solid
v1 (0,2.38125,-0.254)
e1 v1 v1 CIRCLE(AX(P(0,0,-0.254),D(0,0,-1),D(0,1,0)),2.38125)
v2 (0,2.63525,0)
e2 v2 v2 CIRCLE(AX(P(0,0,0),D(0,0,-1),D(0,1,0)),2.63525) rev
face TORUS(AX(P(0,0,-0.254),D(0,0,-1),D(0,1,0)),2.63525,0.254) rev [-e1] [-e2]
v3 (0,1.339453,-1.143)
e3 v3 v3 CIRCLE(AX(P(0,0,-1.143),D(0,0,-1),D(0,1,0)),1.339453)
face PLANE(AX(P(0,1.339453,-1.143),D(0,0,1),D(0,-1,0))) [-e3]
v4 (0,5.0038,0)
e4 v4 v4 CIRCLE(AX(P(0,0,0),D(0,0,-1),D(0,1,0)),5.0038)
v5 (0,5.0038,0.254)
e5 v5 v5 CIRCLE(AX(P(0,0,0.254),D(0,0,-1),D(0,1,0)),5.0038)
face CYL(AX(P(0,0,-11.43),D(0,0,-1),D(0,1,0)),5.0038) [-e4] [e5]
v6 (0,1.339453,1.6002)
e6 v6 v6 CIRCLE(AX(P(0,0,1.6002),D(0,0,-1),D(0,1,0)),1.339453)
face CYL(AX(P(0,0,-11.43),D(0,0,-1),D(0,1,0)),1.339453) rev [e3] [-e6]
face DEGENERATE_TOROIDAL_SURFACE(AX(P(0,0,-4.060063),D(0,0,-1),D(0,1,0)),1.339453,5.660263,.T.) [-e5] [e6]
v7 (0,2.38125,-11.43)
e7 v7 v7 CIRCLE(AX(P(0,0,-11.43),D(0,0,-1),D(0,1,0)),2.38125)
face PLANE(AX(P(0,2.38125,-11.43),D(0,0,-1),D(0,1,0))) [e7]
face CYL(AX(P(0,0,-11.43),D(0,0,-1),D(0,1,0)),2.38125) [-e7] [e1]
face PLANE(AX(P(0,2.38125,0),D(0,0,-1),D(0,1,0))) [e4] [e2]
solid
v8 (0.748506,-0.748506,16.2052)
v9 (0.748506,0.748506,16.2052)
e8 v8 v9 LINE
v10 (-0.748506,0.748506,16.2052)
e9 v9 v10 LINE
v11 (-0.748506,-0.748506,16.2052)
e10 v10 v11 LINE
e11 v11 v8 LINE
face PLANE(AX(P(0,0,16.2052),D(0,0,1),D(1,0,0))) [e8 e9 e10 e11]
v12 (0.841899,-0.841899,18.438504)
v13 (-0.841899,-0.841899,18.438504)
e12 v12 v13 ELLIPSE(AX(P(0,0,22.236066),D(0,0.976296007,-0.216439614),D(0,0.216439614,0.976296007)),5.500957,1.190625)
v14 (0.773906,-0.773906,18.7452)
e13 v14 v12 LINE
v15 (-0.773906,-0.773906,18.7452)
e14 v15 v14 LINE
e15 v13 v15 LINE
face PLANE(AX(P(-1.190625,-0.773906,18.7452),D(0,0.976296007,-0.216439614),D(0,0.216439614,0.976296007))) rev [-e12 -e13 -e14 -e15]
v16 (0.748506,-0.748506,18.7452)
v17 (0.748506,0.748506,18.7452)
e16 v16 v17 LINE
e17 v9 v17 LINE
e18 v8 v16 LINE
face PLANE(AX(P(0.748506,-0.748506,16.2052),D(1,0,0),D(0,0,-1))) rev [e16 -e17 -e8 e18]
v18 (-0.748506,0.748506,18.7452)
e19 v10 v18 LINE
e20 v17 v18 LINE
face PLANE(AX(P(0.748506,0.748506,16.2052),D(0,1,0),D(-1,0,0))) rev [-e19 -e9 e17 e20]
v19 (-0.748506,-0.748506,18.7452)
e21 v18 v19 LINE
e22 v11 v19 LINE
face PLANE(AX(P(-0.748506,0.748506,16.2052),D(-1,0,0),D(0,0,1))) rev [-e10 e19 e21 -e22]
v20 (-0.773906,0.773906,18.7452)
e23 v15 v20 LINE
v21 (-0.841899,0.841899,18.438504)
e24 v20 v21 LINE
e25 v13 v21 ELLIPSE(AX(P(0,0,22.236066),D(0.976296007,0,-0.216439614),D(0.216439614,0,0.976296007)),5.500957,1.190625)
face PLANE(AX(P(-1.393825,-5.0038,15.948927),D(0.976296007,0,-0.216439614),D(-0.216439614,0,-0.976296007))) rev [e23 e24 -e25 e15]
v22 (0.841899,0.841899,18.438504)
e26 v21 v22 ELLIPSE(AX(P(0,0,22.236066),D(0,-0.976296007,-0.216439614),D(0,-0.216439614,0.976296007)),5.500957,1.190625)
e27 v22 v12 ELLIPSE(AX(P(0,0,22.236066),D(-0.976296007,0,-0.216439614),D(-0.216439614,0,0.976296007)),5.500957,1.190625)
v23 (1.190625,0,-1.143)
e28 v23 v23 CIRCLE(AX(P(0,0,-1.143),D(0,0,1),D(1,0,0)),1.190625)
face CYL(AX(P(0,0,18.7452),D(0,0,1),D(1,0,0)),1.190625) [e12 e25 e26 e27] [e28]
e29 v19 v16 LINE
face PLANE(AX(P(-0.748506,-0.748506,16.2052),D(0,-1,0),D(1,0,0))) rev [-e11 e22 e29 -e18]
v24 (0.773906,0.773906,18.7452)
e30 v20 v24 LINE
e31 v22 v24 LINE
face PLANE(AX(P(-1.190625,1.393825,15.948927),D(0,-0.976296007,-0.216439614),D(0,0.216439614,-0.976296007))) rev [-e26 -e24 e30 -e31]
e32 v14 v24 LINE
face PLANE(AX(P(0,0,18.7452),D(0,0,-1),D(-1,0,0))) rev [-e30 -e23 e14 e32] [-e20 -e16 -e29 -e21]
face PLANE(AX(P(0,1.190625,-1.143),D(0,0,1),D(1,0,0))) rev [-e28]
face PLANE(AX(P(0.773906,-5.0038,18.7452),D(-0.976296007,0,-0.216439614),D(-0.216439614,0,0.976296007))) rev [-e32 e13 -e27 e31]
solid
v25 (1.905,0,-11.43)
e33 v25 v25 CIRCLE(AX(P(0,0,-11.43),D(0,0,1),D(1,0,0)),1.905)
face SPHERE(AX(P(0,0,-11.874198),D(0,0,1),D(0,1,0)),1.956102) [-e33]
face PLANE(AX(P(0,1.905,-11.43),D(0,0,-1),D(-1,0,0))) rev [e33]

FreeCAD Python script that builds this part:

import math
import FreeCAD as App
import Part
import Sketcher

V = App.Vector
Q = App.Units.Quantity


def edges_at(feature, points):
    """Names of the edges that pass closest to the given points."""
    edges = feature.Shape.Edges
    near = lambda p: min(range(len(edges)), key=lambda i: edges[i].distToShape(Part.Vertex(*p))[0])
    return sorted({f"Edge{near(p) + 1}" for p in points})

doc = App.newDocument("Part")
body = doc.addObject("PartDesign::Body", "Body")

# Sketch on YZ plane
sketch1 = body.newObject("Sketcher::SketchObject", "Sketch")
sketch1.AttachmentSupport = (doc.getObject("YZ_Plane"), [""])
sketch1.MapMode = "FlatFace"
sketch1.addGeometry([
    Part.LineSegment(V(2.38, -11.43, 0), V(2.38, 0, 0)),  # 0
    Part.LineSegment(V(2.38, 0, 0), V(5, 0, 0)),  # 1
    Part.LineSegment(V(5, 0, 0), V(5, 0.25, 0)),  # 2
    Part.ArcOfCircle(Part.Circle(V(1.34, -4.06, 0), V(0, 0, 1), 5.66), math.radians(50), math.radians(90)),  # 3
    Part.LineSegment(V(1.34, 1.6, 0), V(1.34, -1.14, 0)),  # 4
    Part.LineSegment(V(1.34, -1.14, 0), V(0, -1.14, 0)),  # 5
    Part.LineSegment(V(0, -1.14, 0), V(0, -11.43, 0)),  # 6
    Part.LineSegment(V(0, -11.43, 0), V(2.38, -11.43, 0)),  # 7
], False)
sketch1.addConstraint([
    Sketcher.Constraint("Coincident", 0, 2, 1, 1),
    Sketcher.Constraint("Coincident", 1, 2, 2, 1),
    Sketcher.Constraint("Coincident", 2, 2, 3, 1),
    Sketcher.Constraint("Coincident", 3, 2, 4, 1),
    Sketcher.Constraint("Coincident", 4, 2, 5, 1),
    Sketcher.Constraint("Coincident", 5, 2, 6, 1),
    Sketcher.Constraint("Coincident", 6, 2, 7, 1),
    Sketcher.Constraint("Coincident", 7, 2, 0, 1),
    Sketcher.Constraint("Vertical", 0),
    Sketcher.Constraint("Horizontal", 1),
    Sketcher.Constraint("Vertical", 2),
    Sketcher.Constraint("Vertical", 4),
    Sketcher.Constraint("Horizontal", 5),
    Sketcher.Constraint("Vertical", 6),
    Sketcher.Constraint("Horizontal", 7),
    Sketcher.Constraint("PointOnObject", 0, 2, -1),
    Sketcher.Constraint("PointOnObject", 5, 2, -2),
    Sketcher.Constraint("DistanceY", 0, 1, 0, 2, Q("0.45 in")),
    Sketcher.Constraint("DistanceY", 2, 1, 2, 2, Q("0.01 in")),
    Sketcher.Constraint("DistanceX", 7, 1, 7, 2, Q("0.09375 in")),
    Sketcher.Constraint("DistanceY", 4, 2, 4, 1, Q("0.108 in")),
    Sketcher.Constraint("DistanceY", 6, 2, 6, 1, Q("0.405 in")),
    Sketcher.Constraint("DistanceX", -1, 1, 1, 2, Q("0.197 in")),
    Sketcher.Constraint("Radius", 3, Q("5.660263 mm")),
    Sketcher.Constraint("DistanceX", 5, 2, 5, 1, Q("1.339453 mm")),
])
revolution = body.newObject("PartDesign::Revolution", "Revolution")
revolution.Profile = sketch1
revolution.ReferenceAxis = (sketch1, ["V_Axis"])
revolution.Angle = 360
doc.recompute()

fillet = body.newObject("PartDesign::Fillet", "Fillet")
fillet.Base = (revolution, edges_at(revolution, [(0, -2.381, 0)]))
fillet.Radius = Q("0.01 in")
body2 = doc.addObject("PartDesign::Body", "Body001")

# Sketch on YZ plane
sketch2 = body2.newObject("Sketcher::SketchObject", "Sketch001")
sketch2.AttachmentSupport = (doc.getObject("YZ_Plane001"), [""])
sketch2.MapMode = "FlatFace"
sketch2.addGeometry([
    Part.LineSegment(V(1.2, 18.7, 0), V(0, 18.7, 0)),
    Part.LineSegment(V(0, 18.7, 0), V(0, -1.1, 0)),
    Part.LineSegment(V(0, -1.1, 0), V(1.2, -1.1, 0)),
    Part.LineSegment(V(1.2, -1.1, 0), V(1.2, 18.7, 0)),
], False)
sketch2.addConstraint([
    Sketcher.Constraint("Coincident", 0, 2, 1, 1),
    Sketcher.Constraint("Coincident", 1, 2, 2, 1),
    Sketcher.Constraint("Coincident", 2, 2, 3, 1),
    Sketcher.Constraint("Coincident", 3, 2, 0, 1),
    Sketcher.Constraint("Horizontal", 0),
    Sketcher.Constraint("Vertical", 1),
    Sketcher.Constraint("Horizontal", 2),
    Sketcher.Constraint("Vertical", 3),
    Sketcher.Constraint("PointOnObject", 0, 2, -2),
    Sketcher.Constraint("DistanceX", 0, 2, 0, 1, Q("0.046875 in")),
    Sketcher.Constraint("DistanceY", 1, 2, 1, 1, Q("0.783 in")),
    Sketcher.Constraint("DistanceY", -1, 1, 0, 2, Q("0.738 in")),
])
revolution2 = body2.newObject("PartDesign::Revolution", "Revolution001")
revolution2.Profile = sketch2
revolution2.ReferenceAxis = (sketch2, ["V_Axis"])
revolution2.Angle = 360

# Sketch on XZ plane
sketch3 = body2.newObject("Sketcher::SketchObject", "Sketch002")
sketch3.AttachmentSupport = (doc.getObject("XZ_Plane001"), [""])
sketch3.MapMode = "FlatFace"
sketch3.addGeometry([
    Part.LineSegment(V(-0.8, 18.7, 0), V(-1.4, 15.9, 0)),  # 0
    Part.LineSegment(V(-1.4, 15.9, 0), V(-1.4, 19.3, 0)),  # 1
    Part.LineSegment(V(-1.4, 19.3, 0), V(1.4, 19.3, 0)),  # 2
    Part.LineSegment(V(1.4, 19.3, 0), V(1.4, 15.9, 0)),  # 3
    Part.LineSegment(V(1.4, 15.9, 0), V(0.8, 18.7, 0)),  # 4
    Part.LineSegment(V(0.8, 18.7, 0), V(-0.8, 18.7, 0)),  # 5
], False)
sketch3.addConstraint([
    Sketcher.Constraint("Coincident", 0, 2, 1, 1),
    Sketcher.Constraint("Coincident", 1, 2, 2, 1),
    Sketcher.Constraint("Coincident", 2, 2, 3, 1),
    Sketcher.Constraint("Coincident", 3, 2, 4, 1),
    Sketcher.Constraint("Coincident", 4, 2, 5, 1),
    Sketcher.Constraint("Coincident", 5, 2, 0, 1),
    Sketcher.Constraint("Vertical", 1),
    Sketcher.Constraint("Horizontal", 2),
    Sketcher.Constraint("Vertical", 3),
    Sketcher.Constraint("Horizontal", 5),
    Sketcher.Constraint("Symmetric", 0, 2, 3, 2, -2),
    Sketcher.Constraint("Equal", 0, 4),
    Sketcher.Constraint("Angle", 0, Q("-102.5 deg")),
    Sketcher.Constraint("DistanceY", 4, 2, 2, 2, Q("0.02 in")),
    Sketcher.Constraint("DistanceY", -1, 1, 1, 2, Q("0.758 in")),
    Sketcher.Constraint("DistanceX", 2, 1, 2, 2, Q("2.78765 mm")),
    Sketcher.Constraint("DistanceX", 5, 2, 5, 1, Q("1.547813 mm")),
])
pocket1 = body2.newObject("PartDesign::Pocket", "Pocket")
pocket1.Profile = sketch3
pocket1.Length = 12.0076
pocket1.Midplane = True
doc.recompute()

polarpattern = body2.newObject("PartDesign::PolarPattern", "PolarPattern")
polarpattern.Originals = [pocket1]
polarpattern.Axis = (doc.getObject("Z_Axis001"), [""])
polarpattern.Angle = 90
polarpattern.Occurrences = 2
polarpattern.Reversed = True
body2.Tip = polarpattern

# Sketch on XY plane
sketch4 = body2.newObject("Sketcher::SketchObject", "Sketch003")
sketch4.AttachmentSupport = (doc.getObject("XY_Plane001"), [""])
sketch4.MapMode = "FlatFace"
sketch4.AttachmentOffset = App.Placement(V(0, 0, 0.738 * 25.4), App.Rotation())
sketch4.addGeometry([
    Part.LineSegment(V(-0.7, 0.7, 0), V(-0.7, -0.7, 0)),
    Part.LineSegment(V(-0.7, -0.7, 0), V(0.7, -0.7, 0)),
    Part.LineSegment(V(0.7, -0.7, 0), V(0.7, 0.7, 0)),
    Part.LineSegment(V(0.7, 0.7, 0), V(-0.7, 0.7, 0)),
], False)
sketch4.addConstraint([
    Sketcher.Constraint("Coincident", 0, 2, 1, 1),
    Sketcher.Constraint("Coincident", 1, 2, 2, 1),
    Sketcher.Constraint("Coincident", 2, 2, 3, 1),
    Sketcher.Constraint("Coincident", 3, 2, 0, 1),
    Sketcher.Constraint("Vertical", 0),
    Sketcher.Constraint("Horizontal", 1),
    Sketcher.Constraint("Vertical", 2),
    Sketcher.Constraint("Horizontal", 3),
    Sketcher.Constraint("Symmetric", 0, 2, 2, 2, -1, 1),
    Sketcher.Constraint("Equal", 3, 0),
    Sketcher.Constraint("DistanceX", 1, 1, 1, 2, Q("1.497013 mm")),
])
pocket2 = body2.newObject("PartDesign::Pocket", "Pocket001")
pocket2.Profile = sketch4
pocket2.Length = Q("0.1 in")
body3 = doc.addObject("PartDesign::Body", "Body002")

# Sketch on YZ plane
sketch5 = body3.newObject("Sketcher::SketchObject", "Sketch004")
sketch5.AttachmentSupport = (doc.getObject("YZ_Plane002"), [""])
sketch5.MapMode = "FlatFace"
sketch5.addGeometry([
    Part.LineSegment(V(1.9, -11.4, 0), V(0, -11.4, 0)),
    Part.LineSegment(V(0, -11.4, 0), V(0, -13.8, 0)),
    Part.ArcOfCircle(Part.Circle(V(0, -11.9, 0), V(0, 0, 1), 2), math.radians(-90), math.radians(13)),
], False)
sketch5.addConstraint([
    Sketcher.Constraint("Coincident", 0, 2, 1, 1),
    Sketcher.Constraint("Coincident", 1, 2, 2, 1),
    Sketcher.Constraint("Coincident", 2, 2, 0, 1),
    Sketcher.Constraint("Horizontal", 0),
    Sketcher.Constraint("Vertical", 1),
    Sketcher.Constraint("PointOnObject", 2, 3, -2),
    Sketcher.Constraint("PointOnObject", 0, 2, -2),
    Sketcher.Constraint("DistanceX", 0, 2, 0, 1, Q("0.075 in")),
    Sketcher.Constraint("DistanceY", 0, 2, -1, 1, Q("0.45 in")),
    Sketcher.Constraint("DistanceY", 1, 2, 1, 1, Q("0.0945 in")),
])
revolution3 = body3.newObject("PartDesign::Revolution", "Revolution002")
revolution3.Profile = sketch5
revolution3.ReferenceAxis = (sketch5, ["V_Axis"])
revolution3.Angle = 360

doc.recompute()
